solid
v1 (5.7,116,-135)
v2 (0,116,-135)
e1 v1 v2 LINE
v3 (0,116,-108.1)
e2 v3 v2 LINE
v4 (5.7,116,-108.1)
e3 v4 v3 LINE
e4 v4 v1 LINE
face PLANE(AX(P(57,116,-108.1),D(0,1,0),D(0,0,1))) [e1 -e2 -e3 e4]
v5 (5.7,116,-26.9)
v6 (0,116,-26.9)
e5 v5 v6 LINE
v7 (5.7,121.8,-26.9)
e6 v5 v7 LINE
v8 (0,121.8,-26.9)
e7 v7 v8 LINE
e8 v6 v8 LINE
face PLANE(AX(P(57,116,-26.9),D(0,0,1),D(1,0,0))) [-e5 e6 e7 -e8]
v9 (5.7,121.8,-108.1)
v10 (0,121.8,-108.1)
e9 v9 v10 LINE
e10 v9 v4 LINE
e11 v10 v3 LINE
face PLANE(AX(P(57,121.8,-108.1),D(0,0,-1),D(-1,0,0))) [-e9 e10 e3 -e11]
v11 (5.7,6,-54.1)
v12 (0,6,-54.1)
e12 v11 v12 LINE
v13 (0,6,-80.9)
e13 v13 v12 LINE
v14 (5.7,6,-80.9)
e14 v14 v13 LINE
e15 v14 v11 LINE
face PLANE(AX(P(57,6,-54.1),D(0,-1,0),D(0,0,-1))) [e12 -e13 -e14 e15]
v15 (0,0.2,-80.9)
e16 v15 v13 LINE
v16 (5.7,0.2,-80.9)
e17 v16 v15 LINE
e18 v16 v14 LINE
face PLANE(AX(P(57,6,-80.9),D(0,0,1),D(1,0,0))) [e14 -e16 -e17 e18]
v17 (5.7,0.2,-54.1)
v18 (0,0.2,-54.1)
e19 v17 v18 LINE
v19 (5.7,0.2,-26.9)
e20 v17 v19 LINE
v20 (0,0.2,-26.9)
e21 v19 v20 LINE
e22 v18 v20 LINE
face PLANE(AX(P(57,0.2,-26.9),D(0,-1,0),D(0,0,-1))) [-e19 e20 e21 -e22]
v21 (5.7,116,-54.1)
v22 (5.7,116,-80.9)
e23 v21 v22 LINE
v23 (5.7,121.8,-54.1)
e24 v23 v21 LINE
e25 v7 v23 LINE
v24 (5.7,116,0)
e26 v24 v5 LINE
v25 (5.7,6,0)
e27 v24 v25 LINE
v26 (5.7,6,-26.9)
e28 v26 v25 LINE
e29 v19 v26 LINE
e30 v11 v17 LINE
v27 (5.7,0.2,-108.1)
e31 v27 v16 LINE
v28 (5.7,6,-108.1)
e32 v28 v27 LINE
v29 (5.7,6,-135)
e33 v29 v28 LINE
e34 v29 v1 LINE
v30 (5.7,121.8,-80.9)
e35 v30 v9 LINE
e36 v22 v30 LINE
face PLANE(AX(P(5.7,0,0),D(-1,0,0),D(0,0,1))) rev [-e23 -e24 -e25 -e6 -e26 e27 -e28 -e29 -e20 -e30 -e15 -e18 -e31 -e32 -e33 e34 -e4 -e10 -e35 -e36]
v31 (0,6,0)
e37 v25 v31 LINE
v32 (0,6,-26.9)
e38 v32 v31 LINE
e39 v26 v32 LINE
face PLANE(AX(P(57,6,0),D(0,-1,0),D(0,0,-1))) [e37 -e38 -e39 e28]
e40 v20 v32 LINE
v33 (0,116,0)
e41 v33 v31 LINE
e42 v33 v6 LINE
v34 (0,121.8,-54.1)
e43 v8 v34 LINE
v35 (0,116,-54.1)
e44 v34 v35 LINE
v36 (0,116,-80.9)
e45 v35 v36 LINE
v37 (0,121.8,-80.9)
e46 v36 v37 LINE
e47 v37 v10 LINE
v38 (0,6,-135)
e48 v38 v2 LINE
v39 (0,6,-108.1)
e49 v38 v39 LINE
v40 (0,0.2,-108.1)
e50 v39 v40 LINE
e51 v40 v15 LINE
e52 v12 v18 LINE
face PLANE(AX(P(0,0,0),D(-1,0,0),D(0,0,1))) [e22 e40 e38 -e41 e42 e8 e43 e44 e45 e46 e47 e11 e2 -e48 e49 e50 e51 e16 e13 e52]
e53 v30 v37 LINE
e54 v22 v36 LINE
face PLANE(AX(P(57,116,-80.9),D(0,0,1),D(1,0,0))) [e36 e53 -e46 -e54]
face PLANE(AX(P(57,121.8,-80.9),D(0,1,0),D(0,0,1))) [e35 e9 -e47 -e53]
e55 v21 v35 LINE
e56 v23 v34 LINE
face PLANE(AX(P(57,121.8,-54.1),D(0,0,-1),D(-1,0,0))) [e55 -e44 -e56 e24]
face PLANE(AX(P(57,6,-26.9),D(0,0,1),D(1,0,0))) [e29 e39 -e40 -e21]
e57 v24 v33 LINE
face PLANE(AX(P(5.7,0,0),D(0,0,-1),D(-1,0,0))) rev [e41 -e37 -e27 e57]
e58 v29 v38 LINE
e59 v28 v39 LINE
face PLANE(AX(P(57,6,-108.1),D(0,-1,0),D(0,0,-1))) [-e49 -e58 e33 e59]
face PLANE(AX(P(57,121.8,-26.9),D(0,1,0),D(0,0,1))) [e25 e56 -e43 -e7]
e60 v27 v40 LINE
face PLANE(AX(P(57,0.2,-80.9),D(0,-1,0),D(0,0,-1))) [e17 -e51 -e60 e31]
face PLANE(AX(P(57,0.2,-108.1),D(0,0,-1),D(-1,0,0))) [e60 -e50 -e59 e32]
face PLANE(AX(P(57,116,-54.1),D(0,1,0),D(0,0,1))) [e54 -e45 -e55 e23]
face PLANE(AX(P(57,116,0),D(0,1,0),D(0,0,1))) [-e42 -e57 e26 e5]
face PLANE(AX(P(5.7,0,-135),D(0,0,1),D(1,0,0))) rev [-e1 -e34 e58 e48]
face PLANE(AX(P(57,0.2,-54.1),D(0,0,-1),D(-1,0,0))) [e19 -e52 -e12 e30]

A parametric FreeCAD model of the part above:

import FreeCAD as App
import Part
import Sketcher

doc = App.newDocument("Part")
body = doc.addObject("PartDesign::Body", "Body")

sketch1 = doc.addObject("Sketcher::SketchObject", "Sketch")
body.addObject(sketch1)
sketch1.AttachmentSupport = (doc.YZ_Plane, [""])
sketch1.MapMode = "FlatFace"
sketch1.addGeometry(Part.LineSegment(App.Vector(122, 0, 0), App.Vector(0, 0, 0)), False)
sketch1.addGeometry(Part.LineSegment(App.Vector(0, 0, 0), App.Vector(0, -135, 0)), False)
sketch1.addGeometry(Part.LineSegment(App.Vector(0, -135, 0), App.Vector(122, -135, 0)), False)
sketch1.addGeometry(Part.LineSegment(App.Vector(122, -135, 0), App.Vector(122, 0, 0)), False)
sketch1.addConstraint(Sketcher.Constraint("Coincident", 0, 2, 1, 1))
sketch1.addConstraint(Sketcher.Constraint("Coincident", 1, 2, 2, 1))
sketch1.addConstraint(Sketcher.Constraint("Coincident", 2, 2, 3, 1))
sketch1.addConstraint(Sketcher.Constraint("Coincident", 3, 2, 0, 1))
sketch1.addConstraint(Sketcher.Constraint("Horizontal", 0))
sketch1.addConstraint(Sketcher.Constraint("Vertical", 1))
sketch1.addConstraint(Sketcher.Constraint("Horizontal", 2))
sketch1.addConstraint(Sketcher.Constraint("Vertical", 3))
sketch1.addConstraint(Sketcher.Constraint("Coincident", 0, 2, -1, 1))
sketch1.addConstraint(Sketcher.Constraint("DistanceX", 0, 2, 0, 1, 122.0))
sketch1.addConstraint(Sketcher.Constraint("DistanceY", 1, 2, 1, 1, 135.0))
pad1 = doc.addObject("PartDesign::Pad", "Pad")
body.addObject(pad1)
pad1.Profile = sketch1
pad1.Length = 5.7

sketch2 = doc.addObject("Sketcher::SketchObject", "Sketch001")
body.addObject(sketch2)
sketch2.AttachmentSupport = (doc.YZ_Plane, [""])
sketch2.MapMode = "FlatFace"
sketch2.addGeometry(Part.LineSegment(App.Vector(116, 0, 0), App.Vector(116, -27, 0)), False)
sketch2.addGeometry(Part.LineSegment(App.Vector(116, -27, 0), App.Vector(122, -27, 0)), False)
sketch2.addGeometry(Part.LineSegment(App.Vector(122, -27, 0), App.Vector(122, -54, 0)), False)
sketch2.addGeometry(Part.LineSegment(App.Vector(122, -54, 0), App.Vector(116, -54, 0)), False)
sketch2.addGeometry(Part.LineSegment(App.Vector(116, -54, 0), App.Vector(116, -81, 0)), False)
sketch2.addGeometry(Part.LineSegment(App.Vector(116, -81, 0), App.Vector(122, -81, 0)), False)
sketch2.addGeometry(Part.LineSegment(App.Vector(122, -81, 0), App.Vector(122, -108, 0)), False)
sketch2.addGeometry(Part.LineSegment(App.Vector(122, -108, 0), App.Vector(116, -108, 0)), False)
sketch2.addGeometry(Part.LineSegment(App.Vector(116, -108, 0), App.Vector(116, -135, 0)), False)
sketch2.addGeometry(Part.LineSegment(App.Vector(116, -135, 0), App.Vector(130, -135, 0)), False)
sketch2.addGeometry(Part.LineSegment(App.Vector(130, -135, 0), App.Vector(130, 0, 0)), False)
sketch2.addGeometry(Part.LineSegment(App.Vector(130, 0, 0), App.Vector(116, 0, 0)), False)
sketch2.addGeometry(Part.LineSegment(App.Vector(6, 0, 0), App.Vector(-8, 0, 0)), False)
sketch2.addGeometry(Part.LineSegment(App.Vector(-8, 0, 0), App.Vector(-8, -135, 0)), False)
sketch2.addGeometry(Part.LineSegment(App.Vector(-8, -135, 0), App.Vector(6, -135, 0)), False)
sketch2.addGeometry(Part.LineSegment(App.Vector(6, -135, 0), App.Vector(6, -108, 0)), False)
sketch2.addGeometry(Part.LineSegment(App.Vector(6, -108, 0), App.Vector(0, -108, 0)), False)
sketch2.addGeometry(Part.LineSegment(App.Vector(0, -108, 0), App.Vector(0, -81, 0)), False)
sketch2.addGeometry(Part.LineSegment(App.Vector(0, -81, 0), App.Vector(6, -81, 0)), False)
sketch2.addGeometry(Part.LineSegment(App.Vector(6, -81, 0), App.Vector(6, -54, 0)), False)
sketch2.addGeometry(Part.LineSegment(App.Vector(6, -54, 0), App.Vector(0, -54, 0)), False)
sketch2.addGeometry(Part.LineSegment(App.Vector(0, -54, 0), App.Vector(0, -27, 0)), False)
sketch2.addGeometry(Part.LineSegment(App.Vector(0, -27, 0), App.Vector(6, -27, 0)), False)
sketch2.addGeometry(Part.LineSegment(App.Vector(6, -27, 0), App.Vector(6, 0, 0)), False)
sketch2.addConstraint(Sketcher.Constraint("Coincident", 0, 2, 1, 1))
sketch2.addConstraint(Sketcher.Constraint("Coincident", 1, 2, 2, 1))
sketch2.addConstraint(Sketcher.Constraint("Coincident", 2, 2, 3, 1))
sketch2.addConstraint(Sketcher.Constraint("Coincident", 3, 2, 4, 1))
sketch2.addConstraint(Sketcher.Constraint("Coincident", 4, 2, 5, 1))
sketch2.addConstraint(Sketcher.Constraint("Coincident", 5, 2, 6, 1))
sketch2.addConstraint(Sketcher.Constraint("Coincident", 6, 2, 7, 1))
sketch2.addConstraint(Sketcher.Constraint("Coincident", 7, 2, 8, 1))
sketch2.addConstraint(Sketcher.Constraint("Coincident", 8, 2, 9, 1))
sketch2.addConstraint(Sketcher.Constraint("Coincident", 9, 2, 10, 1))
sketch2.addConstraint(Sketcher.Constraint("Coincident", 10, 2, 11, 1))
sketch2.addConstraint(Sketcher.Constraint("Coincident", 11, 2, 0, 1))
sketch2.addConstraint(Sketcher.Constraint("Coincident", 12, 2, 13, 1))
sketch2.addConstraint(Sketcher.Constraint("Coincident", 13, 2, 14, 1))
sketch2.addConstraint(Sketcher.Constraint("Coincident", 14, 2, 15, 1))
sketch2.addConstraint(Sketcher.Constraint("Coincident", 15, 2, 16, 1))
sketch2.addConstraint(Sketcher.Constraint("Coincident", 16, 2, 17, 1))
sketch2.addConstraint(Sketcher.Constraint("Coincident", 17, 2, 18, 1))
sketch2.addConstraint(Sketcher.Constraint("Coincident", 18, 2, 19, 1))
sketch2.addConstraint(Sketcher.Constraint("Coincident", 19, 2, 20, 1))
sketch2.addConstraint(Sketcher.Constraint("Coincident", 20, 2, 21, 1))
sketch2.addConstraint(Sketcher.Constraint("Coincident", 21, 2, 22, 1))
sketch2.addConstraint(Sketcher.Constraint("Coincident", 22, 2, 23, 1))
sketch2.addConstraint(Sketcher.Constraint("Coincident", 23, 2, 12, 1))
sketch2.addConstraint(Sketcher.Constraint("Vertical", 0))
sketch2.addConstraint(Sketcher.Constraint("Horizontal", 1))
sketch2.addConstraint(Sketcher.Constraint("Vertical", 2))
sketch2.addConstraint(Sketcher.Constraint("Horizontal", 3))
sketch2.addConstraint(Sketcher.Constraint("Vertical", 4))
sketch2.addConstraint(Sketcher.Constraint("Horizontal", 5))
sketch2.addConstraint(Sketcher.Constraint("Vertical", 6))
sketch2.addConstraint(Sketcher.Constraint("Horizontal", 7))
sketch2.addConstraint(Sketcher.Constraint("Vertical", 8))
sketch2.addConstraint(Sketcher.Constraint("Horizontal", 9))
sketch2.addConstraint(Sketcher.Constraint("Vertical", 10))
sketch2.addConstraint(Sketcher.Constraint("Horizontal", 11))
sketch2.addConstraint(Sketcher.Constraint("Horizontal", 12))
sketch2.addConstraint(Sketcher.Constraint("Vertical", 13))
sketch2.addConstraint(Sketcher.Constraint("Horizontal", 14))
sketch2.addConstraint(Sketcher.Constraint("Vertical", 15))
sketch2.addConstraint(Sketcher.Constraint("Horizontal", 16))
sketch2.addConstraint(Sketcher.Constraint("Vertical", 17))
sketch2.addConstraint(Sketcher.Constraint("Horizontal", 18))
sketch2.addConstraint(Sketcher.Constraint("Vertical", 19))
sketch2.addConstraint(Sketcher.Constraint("Horizontal", 20))
sketch2.addConstraint(Sketcher.Constraint("Vertical", 21))
sketch2.addConstraint(Sketcher.Constraint("Horizontal", 22))
sketch2.addConstraint(Sketcher.Constraint("Vertical", 23))
sketch2.addConstraint(Sketcher.Constraint("PointOnObject", 10, 2, -1))
sketch2.addConstraint(Sketcher.Constraint("PointOnObject", 12, 2, -1))
sketch2.addConstraint(Sketcher.Constraint("Horizontal", 9, 2, 13, 2))
sketch2.addConstraint(Sketcher.Constraint("Horizontal", 7, 2, 15, 2))
sketch2.addConstraint(Sketcher.Constraint("Horizontal", 5, 2, 17, 2))
sketch2.addConstraint(Sketcher.Constraint("Horizontal", 3, 2, 19, 2))
sketch2.addConstraint(Sketcher.Constraint("Horizontal", 1, 2, 21, 2))
sketch2.addConstraint(Sketcher.Constraint("Vertical", 0, 2, 3, 2))
sketch2.addConstraint(Sketcher.Constraint("Vertical", 2, 2, 5, 2))
sketch2.addConstraint(Sketcher.Constraint("Vertical", 4, 2, 7, 2))
sketch2.addConstraint(Sketcher.Constraint("Vertical", 15, 2, 18, 2))
sketch2.addConstraint(Sketcher.Constraint("Vertical", 17, 2, 20, 2))
sketch2.addConstraint(Sketcher.Constraint("Vertical", 19, 2, 22, 2))
sketch2.addConstraint(Sketcher.Constraint("Equal", 11, 12))
sketch2.addConstraint(Sketcher.Constraint("Equal", 7, 16))
sketch2.addConstraint(Sketcher.Constraint("Equal", 2, 6))
sketch2.addConstraint(Sketcher.Constraint("Equal", 0, 8))
sketch2.addConstraint(Sketcher.Constraint("DistanceX", 9, 1, 9, 2, 14.0))
sketch2.addConstraint(Sketcher.Constraint("DistanceY", 10, 1, 10, 2, 135.0))
sketch2.addConstraint(Sketcher.Constraint("DistanceX", 1, 1, 1, 2, 5.8))
sketch2.addConstraint(Sketcher.Constraint("DistanceY", 0, 2, 0, 1, 26.9))
sketch2.addConstraint(Sketcher.Constraint("DistanceY", 2, 2, 2, 1, 27.2))
sketch2.addConstraint(Sketcher.Constraint("DistanceX", -1, 1, 0, 2, 116.0))
sketch2.addConstraint(Sketcher.Constraint("DistanceX", 12, 2, -1, 1, 8.0))
pocket1 = doc.addObject("PartDesign::Pocket", "Pocket")
body.addObject(pocket1)
pocket1.Profile = sketch2
pocket1.Length = 57
pocket1.Reversed = True

doc.recompute()
